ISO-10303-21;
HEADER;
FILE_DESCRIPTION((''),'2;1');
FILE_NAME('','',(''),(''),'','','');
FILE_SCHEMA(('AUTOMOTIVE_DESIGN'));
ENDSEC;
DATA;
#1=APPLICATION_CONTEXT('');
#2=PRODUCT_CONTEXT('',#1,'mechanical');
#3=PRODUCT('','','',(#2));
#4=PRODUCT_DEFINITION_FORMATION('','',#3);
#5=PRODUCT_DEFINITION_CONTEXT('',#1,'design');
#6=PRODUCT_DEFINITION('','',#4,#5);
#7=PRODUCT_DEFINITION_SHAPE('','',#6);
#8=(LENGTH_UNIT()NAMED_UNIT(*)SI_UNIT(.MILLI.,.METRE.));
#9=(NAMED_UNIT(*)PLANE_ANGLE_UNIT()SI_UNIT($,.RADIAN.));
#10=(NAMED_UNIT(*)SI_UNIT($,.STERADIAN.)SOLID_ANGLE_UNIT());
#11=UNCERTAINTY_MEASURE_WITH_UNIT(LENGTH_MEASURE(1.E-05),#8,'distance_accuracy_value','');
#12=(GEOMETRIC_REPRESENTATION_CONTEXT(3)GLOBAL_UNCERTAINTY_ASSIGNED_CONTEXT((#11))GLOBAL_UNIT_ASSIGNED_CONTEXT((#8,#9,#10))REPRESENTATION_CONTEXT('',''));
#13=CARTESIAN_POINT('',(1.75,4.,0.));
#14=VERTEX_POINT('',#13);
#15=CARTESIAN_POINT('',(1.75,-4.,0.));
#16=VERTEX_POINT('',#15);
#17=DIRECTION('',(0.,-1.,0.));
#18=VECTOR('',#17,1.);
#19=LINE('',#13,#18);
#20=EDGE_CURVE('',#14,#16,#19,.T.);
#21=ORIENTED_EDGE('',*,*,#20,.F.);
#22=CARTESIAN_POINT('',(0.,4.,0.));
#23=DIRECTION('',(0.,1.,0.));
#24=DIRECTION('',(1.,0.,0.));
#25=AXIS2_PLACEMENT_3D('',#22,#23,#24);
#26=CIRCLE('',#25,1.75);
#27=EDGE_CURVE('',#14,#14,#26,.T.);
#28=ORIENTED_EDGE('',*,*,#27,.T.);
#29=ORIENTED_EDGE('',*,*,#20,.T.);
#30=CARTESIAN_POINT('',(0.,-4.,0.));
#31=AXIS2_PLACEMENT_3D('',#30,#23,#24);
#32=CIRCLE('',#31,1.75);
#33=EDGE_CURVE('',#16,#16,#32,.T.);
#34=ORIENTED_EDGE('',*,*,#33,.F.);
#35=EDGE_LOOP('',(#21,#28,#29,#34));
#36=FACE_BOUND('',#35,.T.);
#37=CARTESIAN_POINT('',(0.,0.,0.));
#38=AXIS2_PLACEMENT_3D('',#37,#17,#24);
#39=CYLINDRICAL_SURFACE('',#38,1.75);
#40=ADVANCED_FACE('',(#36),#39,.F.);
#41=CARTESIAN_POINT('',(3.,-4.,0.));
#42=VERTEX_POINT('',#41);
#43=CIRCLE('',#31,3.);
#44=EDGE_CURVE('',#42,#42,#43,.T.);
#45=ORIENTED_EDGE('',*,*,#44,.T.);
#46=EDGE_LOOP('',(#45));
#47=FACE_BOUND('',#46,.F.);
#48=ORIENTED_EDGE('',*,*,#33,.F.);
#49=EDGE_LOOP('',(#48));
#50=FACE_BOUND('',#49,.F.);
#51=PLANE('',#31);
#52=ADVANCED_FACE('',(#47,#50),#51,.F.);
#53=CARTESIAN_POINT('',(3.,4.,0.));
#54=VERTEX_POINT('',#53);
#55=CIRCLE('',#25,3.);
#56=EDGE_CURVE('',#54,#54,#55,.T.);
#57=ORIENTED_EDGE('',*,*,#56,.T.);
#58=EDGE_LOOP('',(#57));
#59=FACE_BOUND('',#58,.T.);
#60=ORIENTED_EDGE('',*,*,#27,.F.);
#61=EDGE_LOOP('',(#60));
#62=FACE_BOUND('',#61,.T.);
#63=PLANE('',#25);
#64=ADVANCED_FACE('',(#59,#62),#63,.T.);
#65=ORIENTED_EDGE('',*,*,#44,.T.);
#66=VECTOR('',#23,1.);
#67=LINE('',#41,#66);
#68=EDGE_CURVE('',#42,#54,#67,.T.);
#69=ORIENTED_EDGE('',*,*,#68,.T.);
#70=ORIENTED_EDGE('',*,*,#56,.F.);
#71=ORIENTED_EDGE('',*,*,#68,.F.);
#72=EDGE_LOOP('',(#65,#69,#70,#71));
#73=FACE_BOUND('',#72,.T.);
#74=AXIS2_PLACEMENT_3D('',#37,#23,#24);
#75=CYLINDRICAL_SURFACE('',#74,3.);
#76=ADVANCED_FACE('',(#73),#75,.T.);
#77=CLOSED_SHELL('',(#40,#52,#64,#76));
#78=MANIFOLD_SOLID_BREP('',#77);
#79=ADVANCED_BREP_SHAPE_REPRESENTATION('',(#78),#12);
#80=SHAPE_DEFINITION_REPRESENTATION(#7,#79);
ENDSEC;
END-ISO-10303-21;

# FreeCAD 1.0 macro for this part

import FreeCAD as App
import Part
import Sketcher
from FreeCAD import Vector
Q = App.Units.Quantity

doc = App.newDocument("Part")
params = doc.addObject("Spreadsheet::Sheet", "Params")
for row, (alias, value) in enumerate([
    ("sketch1_diameter", "6 mm"),
    ("sketch1_diameter2", "3.5 mm"),
    ("pad1_length", "8 mm"),
], start=1):
    params.set(f"A{row}", alias)
    params.set(f"B{row}", "=" + value)
    params.setAlias(f"B{row}", alias)

body = doc.addObject("PartDesign::Body", "Body")

# Sketch on XZ plane
sketch1 = body.newObject("Sketcher::SketchObject", "Sketch")
sketch1.AttachmentSupport = (doc.getObject("XZ_Plane"), [""])
sketch1.MapMode = "FlatFace"
sketch1.addGeometry(Part.Circle(Vector(0, 0, 0), Vector(0, 0, 1), 3), False)
sketch1.addGeometry(Part.Circle(Vector(0, 0, 0), Vector(0, 0, 1), 1.75), False)
sketch1.addConstraint(Sketcher.Constraint("Coincident", 0, 3, -1, 1))
sketch1.addConstraint(Sketcher.Constraint("Coincident", 1, 3, -1, 1))
sketch1.addConstraint(Sketcher.Constraint("Diameter", 0, Q("6 mm")))
sketch1.addConstraint(Sketcher.Constraint("Diameter", 1, Q("3.5 mm")))
sketch1.setExpression("Constraints[2]", "Params.sketch1_diameter")
sketch1.setExpression("Constraints[3]", "Params.sketch1_diameter2")
pad1 = body.newObject("PartDesign::Pad", "Pad")
pad1.Profile = sketch1
pad1.setExpression("Length", "Params.pad1_length")
pad1.Midplane = True

doc.recompute()
